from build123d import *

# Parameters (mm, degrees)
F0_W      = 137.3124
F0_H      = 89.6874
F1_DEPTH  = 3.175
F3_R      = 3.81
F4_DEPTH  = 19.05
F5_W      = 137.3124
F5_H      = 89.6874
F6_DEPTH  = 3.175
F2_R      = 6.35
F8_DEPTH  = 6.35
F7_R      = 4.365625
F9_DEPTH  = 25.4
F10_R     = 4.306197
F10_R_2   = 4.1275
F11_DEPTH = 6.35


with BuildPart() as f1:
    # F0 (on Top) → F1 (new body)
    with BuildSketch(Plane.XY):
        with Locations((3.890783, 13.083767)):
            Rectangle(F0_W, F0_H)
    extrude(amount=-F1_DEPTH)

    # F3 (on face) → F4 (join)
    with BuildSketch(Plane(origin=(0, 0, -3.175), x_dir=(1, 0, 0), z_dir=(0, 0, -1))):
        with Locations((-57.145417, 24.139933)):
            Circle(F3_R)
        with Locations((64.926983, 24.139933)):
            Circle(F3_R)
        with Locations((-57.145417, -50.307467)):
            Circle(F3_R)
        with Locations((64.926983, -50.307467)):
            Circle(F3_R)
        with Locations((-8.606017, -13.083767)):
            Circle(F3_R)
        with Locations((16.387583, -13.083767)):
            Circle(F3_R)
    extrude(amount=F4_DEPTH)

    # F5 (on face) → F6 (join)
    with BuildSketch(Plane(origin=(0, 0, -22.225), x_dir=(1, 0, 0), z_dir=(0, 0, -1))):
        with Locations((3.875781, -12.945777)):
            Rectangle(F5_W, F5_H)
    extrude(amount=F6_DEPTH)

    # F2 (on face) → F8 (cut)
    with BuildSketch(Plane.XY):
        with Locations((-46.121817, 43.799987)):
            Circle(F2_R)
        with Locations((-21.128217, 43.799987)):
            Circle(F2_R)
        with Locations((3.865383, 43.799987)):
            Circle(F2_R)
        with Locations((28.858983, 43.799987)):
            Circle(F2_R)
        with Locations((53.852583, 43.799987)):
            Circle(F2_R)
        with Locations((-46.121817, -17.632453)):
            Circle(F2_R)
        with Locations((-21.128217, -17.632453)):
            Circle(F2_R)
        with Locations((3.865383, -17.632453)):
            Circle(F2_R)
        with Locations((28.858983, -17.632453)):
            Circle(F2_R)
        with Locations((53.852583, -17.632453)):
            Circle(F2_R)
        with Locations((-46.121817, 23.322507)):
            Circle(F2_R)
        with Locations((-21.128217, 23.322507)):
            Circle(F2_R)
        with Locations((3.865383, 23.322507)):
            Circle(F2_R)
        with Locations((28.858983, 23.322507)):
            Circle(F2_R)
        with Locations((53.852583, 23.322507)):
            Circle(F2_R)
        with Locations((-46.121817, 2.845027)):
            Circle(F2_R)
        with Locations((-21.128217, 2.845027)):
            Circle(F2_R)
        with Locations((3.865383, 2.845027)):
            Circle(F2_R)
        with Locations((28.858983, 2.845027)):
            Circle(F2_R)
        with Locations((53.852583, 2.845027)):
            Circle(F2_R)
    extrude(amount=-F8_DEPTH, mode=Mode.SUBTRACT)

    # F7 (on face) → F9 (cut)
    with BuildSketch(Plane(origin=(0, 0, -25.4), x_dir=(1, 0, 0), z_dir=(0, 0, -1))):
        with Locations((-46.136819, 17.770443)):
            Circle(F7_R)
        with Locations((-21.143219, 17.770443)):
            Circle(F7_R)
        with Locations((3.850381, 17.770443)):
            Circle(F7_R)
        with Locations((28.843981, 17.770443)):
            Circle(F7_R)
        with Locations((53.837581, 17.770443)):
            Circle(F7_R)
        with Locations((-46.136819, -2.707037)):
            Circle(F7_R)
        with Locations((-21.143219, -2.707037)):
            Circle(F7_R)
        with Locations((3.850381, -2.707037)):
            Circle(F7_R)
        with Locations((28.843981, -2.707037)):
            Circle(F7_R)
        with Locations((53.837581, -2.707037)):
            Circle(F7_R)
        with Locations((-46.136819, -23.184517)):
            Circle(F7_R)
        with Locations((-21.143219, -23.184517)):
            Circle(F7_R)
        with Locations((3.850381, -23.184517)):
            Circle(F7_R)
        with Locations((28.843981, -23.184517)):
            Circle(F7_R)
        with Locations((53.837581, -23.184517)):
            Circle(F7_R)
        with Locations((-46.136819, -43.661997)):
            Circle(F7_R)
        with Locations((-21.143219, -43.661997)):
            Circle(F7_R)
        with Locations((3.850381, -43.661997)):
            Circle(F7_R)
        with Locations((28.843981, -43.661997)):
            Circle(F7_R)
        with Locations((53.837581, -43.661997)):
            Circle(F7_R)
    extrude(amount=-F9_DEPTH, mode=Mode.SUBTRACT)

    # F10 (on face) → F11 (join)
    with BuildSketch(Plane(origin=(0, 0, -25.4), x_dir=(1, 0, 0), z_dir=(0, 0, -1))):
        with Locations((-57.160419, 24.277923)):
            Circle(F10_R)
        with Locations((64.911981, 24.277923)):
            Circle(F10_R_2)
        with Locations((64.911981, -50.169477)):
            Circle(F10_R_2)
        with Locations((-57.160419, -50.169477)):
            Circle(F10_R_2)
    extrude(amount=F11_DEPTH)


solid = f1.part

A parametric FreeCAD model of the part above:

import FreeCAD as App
import Part
import Sketcher
Q = App.Units.Quantity


def add_polygon(sketch, points):
    """Adds a closed chain of lines whose ends are joined by coincident constraints."""
    first, n = sketch.GeometryCount, len(points)
    for a, b in zip(points, points[1:] + points[:1]):
        sketch.addGeometry(Part.LineSegment(App.Vector(*a, 0), App.Vector(*b, 0)), False)
    for i in range(n):
        sketch.addConstraint(Sketcher.Constraint("Coincident", first + i, 2, first + (i + 1) % n, 1))

doc = App.newDocument("Part")
body = doc.addObject("PartDesign::Body", "Body")

# Sketch on XY plane
sketch1 = body.newObject("Sketcher::SketchObject", "Sketch")
sketch1.AttachmentSupport = (doc.getObject("XY_Plane"), [""])
sketch1.MapMode = "FlatFace"
add_polygon(sketch1, [(-64.765417, 57.927467), (-64.765417, -31.759933), (72.546983, -31.759933), (72.546983, 57.927467)])  # lines 0-3
sketch1.addConstraint([
    Sketcher.Constraint("Vertical", 0),
    Sketcher.Constraint("Horizontal", 1),
    Sketcher.Constraint("Vertical", 2),
    Sketcher.Constraint("Horizontal", 3),
    Sketcher.Constraint("DistanceX", 1, 1, 1, 2, Q("5.406 in")),
    Sketcher.Constraint("DistanceY", 0, 2, 0, 1, Q("3.531 in")),
    Sketcher.Constraint("DistanceX", 0, 2, -1, 1, Q("64.765417 mm")),
    Sketcher.Constraint("DistanceY", 0, 2, -1, 1, Q("31.759933 mm")),
])
pad1 = body.newObject("PartDesign::Pad", "Pad")
pad1.Profile = sketch1
pad1.Length = Q("0.125 in")
pad1.Reversed = True

# Sketch on XY plane
sketch2 = body.newObject("Sketcher::SketchObject", "Sketch001")
sketch2.AttachmentSupport = (doc.getObject("XY_Plane"), [""])
sketch2.MapMode = "FlatFace"
sketch2.AttachmentOffset = App.Placement(App.Vector(0, 0, -0.125 * 25.4), App.Rotation())
sketch2.addGeometry([
    Part.Circle(App.Vector(-57.145417, -24.139933, 0), App.Vector(0, 0, 1), 3.81),  # 0
    Part.Circle(App.Vector(64.926983, -24.139933, 0), App.Vector(0, 0, 1), 3.81),  # 1
    Part.Circle(App.Vector(-57.145417, 50.307467, 0), App.Vector(0, 0, 1), 3.81),  # 2
    Part.Circle(App.Vector(64.926983, 50.307467, 0), App.Vector(0, 0, 1), 3.81),  # 3
    Part.Circle(App.Vector(-8.606017, 13.083767, 0), App.Vector(0, 0, 1), 3.81),  # 4
    Part.Circle(App.Vector(16.387583, 13.083767, 0), App.Vector(0, 0, 1), 3.81),  # 5
], False)
sketch2.addConstraint([
    Sketcher.Constraint("Equal", 0, 1),
    Sketcher.Constraint("Equal", 1, 2),
    Sketcher.Constraint("Equal", 2, 3),
    Sketcher.Constraint("Equal", 3, 4),
    Sketcher.Constraint("Equal", 4, 5),
    Sketcher.Constraint("Horizontal", 0, 3, 1, 3),
    Sketcher.Constraint("Horizontal", 2, 3, 3, 3),
    Sketcher.Constraint("Horizontal", 4, 3, 5, 3),
    Sketcher.Constraint("Vertical", 0, 3, 2, 3),
    Sketcher.Constraint("Vertical", 1, 3, 3, 3),
    Sketcher.Constraint("Diameter", 0, Q("0.3 in")),
    Sketcher.Constraint("DistanceX", 0, 3, 1, 3, Q("4.806 in")),
    Sketcher.Constraint("DistanceY", 0, 3, 2, 3, Q("2.931 in")),
    Sketcher.Constraint("DistanceX", 0, 3, 4, 3, Q("1.911 in")),
    Sketcher.Constraint("DistanceX", 4, 3, 5, 3, Q("0.984 in")),
    Sketcher.Constraint("DistanceY", 0, 3, 4, 3, Q("1.4655 in")),
    Sketcher.Constraint("DistanceX", 0, 3, -1, 1, Q("57.145417 mm")),
    Sketcher.Constraint("DistanceY", 0, 3, -1, 1, Q("24.139933 mm")),
])
pad2 = body.newObject("PartDesign::Pad", "Pad001")
pad2.Profile = sketch2
pad2.Length = Q("0.75 in")
pad2.Reversed = True

# Sketch on XY plane
sketch3 = body.newObject("Sketcher::SketchObject", "Sketch002")
sketch3.AttachmentSupport = (doc.getObject("XY_Plane"), [""])
sketch3.MapMode = "FlatFace"
sketch3.AttachmentOffset = App.Placement(App.Vector(0, 0, -0.875 * 25.4), App.Rotation())
add_polygon(sketch3, [(-64.780419, -31.897923), (-64.780419, 57.789477), (72.531981, 57.789477), (72.531981, -31.897923)])  # lines 0-3
sketch3.addConstraint([
    Sketcher.Constraint("Vertical", 0),
    Sketcher.Constraint("Horizontal", 1),
    Sketcher.Constraint("Vertical", 2),
    Sketcher.Constraint("Horizontal", 3),
    Sketcher.Constraint("DistanceX", 1, 1, 1, 2, Q("5.406 in")),
    Sketcher.Constraint("DistanceY", 0, 1, 0, 2, Q("3.531 in")),
    Sketcher.Constraint("DistanceX", 0, 2, -1, 1, Q("64.780419 mm")),
    Sketcher.Constraint("DistanceY", -1, 1, 0, 2, Q("57.789477 mm")),
])
pad3 = body.newObject("PartDesign::Pad", "Pad002")
pad3.Profile = sketch3
pad3.Length = Q("0.125 in")
pad3.Reversed = True

# Sketch on XY plane
sketch4 = body.newObject("Sketcher::SketchObject", "Sketch003")
sketch4.AttachmentSupport = (doc.getObject("XY_Plane"), [""])
sketch4.MapMode = "FlatFace"
sketch4.addGeometry([
    Part.Circle(App.Vector(-46.121817, 43.799987, 0), App.Vector(0, 0, 1), 6.35),  # 0
    Part.Circle(App.Vector(-21.128217, 43.799987, 0), App.Vector(0, 0, 1), 6.35),  # 1
    Part.Circle(App.Vector(3.865383, 43.799987, 0), App.Vector(0, 0, 1), 6.35),  # 2
    Part.Circle(App.Vector(28.858983, 43.799987, 0), App.Vector(0, 0, 1), 6.35),  # 3
    Part.Circle(App.Vector(53.852583, 43.799987, 0), App.Vector(0, 0, 1), 6.35),  # 4
    Part.Circle(App.Vector(-46.121817, -17.632453, 0), App.Vector(0, 0, 1), 6.35),  # 5
    Part.Circle(App.Vector(-21.128217, -17.632453, 0), App.Vector(0, 0, 1), 6.35),  # 6
    Part.Circle(App.Vector(3.865383, -17.632453, 0), App.Vector(0, 0, 1), 6.35),  # 7
    Part.Circle(App.Vector(28.858983, -17.632453, 0), App.Vector(0, 0, 1), 6.35),  # 8
    Part.Circle(App.Vector(53.852583, -17.632453, 0), App.Vector(0, 0, 1), 6.35),  # 9
    Part.Circle(App.Vector(-46.121817, 23.322507, 0), App.Vector(0, 0, 1), 6.35),  # 10
    Part.Circle(App.Vector(-21.128217, 23.322507, 0), App.Vector(0, 0, 1), 6.35),  # 11
    Part.Circle(App.Vector(3.865383, 23.322507, 0), App.Vector(0, 0, 1), 6.35),  # 12
    Part.Circle(App.Vector(28.858983, 23.322507, 0), App.Vector(0, 0, 1), 6.35),  # 13
    Part.Circle(App.Vector(53.852583, 23.322507, 0), App.Vector(0, 0, 1), 6.35),  # 14
    Part.Circle(App.Vector(-46.121817, 2.845027, 0), App.Vector(0, 0, 1), 6.35),  # 15
    Part.Circle(App.Vector(-21.128217, 2.845027, 0), App.Vector(0, 0, 1), 6.35),  # 16
    Part.Circle(App.Vector(3.865383, 2.845027, 0), App.Vector(0, 0, 1), 6.35),  # 17
    Part.Circle(App.Vector(28.858983, 2.845027, 0), App.Vector(0, 0, 1), 6.35),  # 18
    Part.Circle(App.Vector(53.852583, 2.845027, 0), App.Vector(0, 0, 1), 6.35),  # 19
], False)
sketch4.addConstraint([
    Sketcher.Constraint("Equal", 0, 1),
    Sketcher.Constraint("Equal", 1, 2),
    Sketcher.Constraint("Equal", 2, 3),
    Sketcher.Constraint("Equal", 3, 4),
    Sketcher.Constraint("Equal", 4, 5),
    Sketcher.Constraint("Equal", 5, 6),
    Sketcher.Constraint("Equal", 6, 7),
    Sketcher.Constraint("Equal", 7, 8),
    Sketcher.Constraint("Equal", 8, 9),
    Sketcher.Constraint("Equal", 9, 10),
    Sketcher.Constraint("Equal", 10, 11),
    Sketcher.Constraint("Equal", 11, 12),
    Sketcher.Constraint("Equal", 12, 13),
    Sketcher.Constraint("Equal", 13, 14),
    Sketcher.Constraint("Equal", 14, 15),
    Sketcher.Constraint("Equal", 15, 16),
    Sketcher.Constraint("Equal", 16, 17),
    Sketcher.Constraint("Equal", 17, 18),
    Sketcher.Constraint("Equal", 18, 19),
    Sketcher.Constraint("Horizontal", 0, 3, 1, 3),
    Sketcher.Constraint("Horizontal", 1, 3, 2, 3),
    Sketcher.Constraint("Horizontal", 2, 3, 3, 3),
    Sketcher.Constraint("Horizontal", 3, 3, 4, 3),
    Sketcher.Constraint("Horizontal", 5, 3, 6, 3),
    Sketcher.Constraint("Horizontal", 6, 3, 7, 3),
    Sketcher.Constraint("Horizontal", 7, 3, 8, 3),
    Sketcher.Constraint("Horizontal", 8, 3, 9, 3),
    Sketcher.Constraint("Horizontal", 10, 3, 11, 3),
    Sketcher.Constraint("Horizontal", 11, 3, 12, 3),
    Sketcher.Constraint("Horizontal", 12, 3, 13, 3),
    Sketcher.Constraint("Horizontal", 13, 3, 14, 3),
    Sketcher.Constraint("Horizontal", 15, 3, 16, 3),
    Sketcher.Constraint("Horizontal", 16, 3, 17, 3),
    Sketcher.Constraint("Horizontal", 17, 3, 18, 3),
    Sketcher.Constraint("Horizontal", 18, 3, 19, 3),
    Sketcher.Constraint("Vertical", 0, 3, 5, 3),
    Sketcher.Constraint("Vertical", 1, 3, 6, 3),
    Sketcher.Constraint("Vertical", 2, 3, 7, 3),
    Sketcher.Constraint("Vertical", 3, 3, 8, 3),
    Sketcher.Constraint("Vertical", 4, 3, 9, 3),
    Sketcher.Constraint("Vertical", 5, 3, 10, 3),
    Sketcher.Constraint("Vertical", 6, 3, 11, 3),
    Sketcher.Constraint("Vertical", 7, 3, 12, 3),
    Sketcher.Constraint("Vertical", 8, 3, 13, 3),
    Sketcher.Constraint("Vertical", 9, 3, 14, 3),
    Sketcher.Constraint("Vertical", 10, 3, 15, 3),
    Sketcher.Constraint("Vertical", 11, 3, 16, 3),
    Sketcher.Constraint("Vertical", 12, 3, 17, 3),
    Sketcher.Constraint("Vertical", 13, 3, 18, 3),
    Sketcher.Constraint("Vertical", 14, 3, 19, 3),
    Sketcher.Constraint("Diameter", 0, Q("0.5 in")),
    Sketcher.Constraint("DistanceX", 0, 3, 1, 3, Q("0.984 in")),
    Sketcher.Constraint("DistanceX", 1, 3, 2, 3, Q("0.984 in")),
    Sketcher.Constraint("DistanceX", 2, 3, 3, 3, Q("0.984 in")),
    Sketcher.Constraint("DistanceX", 3, 3, 4, 3, Q("0.984 in")),
    Sketcher.Constraint("DistanceY", 5, 3, 0, 3, Q("2.4186 in")),
    Sketcher.Constraint("DistanceY", 10, 3, 0, 3, Q("0.8062 in")),
    Sketcher.Constraint("DistanceY", 5, 3, 15, 3, Q("0.8062 in")),
    Sketcher.Constraint("DistanceX", 0, 3, -1, 1, Q("46.121817 mm")),
    Sketcher.Constraint("DistanceY", -1, 1, 0, 3, Q("43.799987 mm")),
])
pocket1 = body.newObject("PartDesign::Pocket", "Pocket")
pocket1.Profile = sketch4
pocket1.Length = Q("0.25 in")

# Sketch on XY plane
sketch5 = body.newObject("Sketcher::SketchObject", "Sketch004")
sketch5.AttachmentSupport = (doc.getObject("XY_Plane"), [""])
sketch5.MapMode = "FlatFace"
sketch5.AttachmentOffset = App.Placement(App.Vector(0, 0, -1 * 25.4), App.Rotation())
sketch5.addGeometry([
    Part.Circle(App.Vector(-46.136819, -17.770443, 0), App.Vector(0, 0, 1), 4.365625),  # 0
    Part.Circle(App.Vector(-21.143219, -17.770443, 0), App.Vector(0, 0, 1), 4.365625),  # 1
    Part.Circle(App.Vector(3.850381, -17.770443, 0), App.Vector(0, 0, 1), 4.365625),  # 2
    Part.Circle(App.Vector(28.843981, -17.770443, 0), App.Vector(0, 0, 1), 4.365625),  # 3
    Part.Circle(App.Vector(53.837581, -17.770443, 0), App.Vector(0, 0, 1), 4.365625),  # 4
    Part.Circle(App.Vector(-46.136819, 2.707037, 0), App.Vector(0, 0, 1), 4.365625),  # 5
    Part.Circle(App.Vector(-21.143219, 2.707037, 0), App.Vector(0, 0, 1), 4.365625),  # 6
    Part.Circle(App.Vector(3.850381, 2.707037, 0), App.Vector(0, 0, 1), 4.365625),  # 7
    Part.Circle(App.Vector(28.843981, 2.707037, 0), App.Vector(0, 0, 1), 4.365625),  # 8
    Part.Circle(App.Vector(53.837581, 2.707037, 0), App.Vector(0, 0, 1), 4.365625),  # 9
    Part.Circle(App.Vector(-46.136819, 23.184517, 0), App.Vector(0, 0, 1), 4.365625),  # 10
    Part.Circle(App.Vector(-21.143219, 23.184517, 0), App.Vector(0, 0, 1), 4.365625),  # 11
    Part.Circle(App.Vector(3.850381, 23.184517, 0), App.Vector(0, 0, 1), 4.365625),  # 12
    Part.Circle(App.Vector(28.843981, 23.184517, 0), App.Vector(0, 0, 1), 4.365625),  # 13
    Part.Circle(App.Vector(53.837581, 23.184517, 0), App.Vector(0, 0, 1), 4.365625),  # 14
    Part.Circle(App.Vector(-46.136819, 43.661997, 0), App.Vector(0, 0, 1), 4.365625),  # 15
    Part.Circle(App.Vector(-21.143219, 43.661997, 0), App.Vector(0, 0, 1), 4.365625),  # 16
    Part.Circle(App.Vector(3.850381, 43.661997, 0), App.Vector(0, 0, 1), 4.365625),  # 17
    Part.Circle(App.Vector(28.843981, 43.661997, 0), App.Vector(0, 0, 1), 4.365625),  # 18
    Part.Circle(App.Vector(53.837581, 43.661997, 0), App.Vector(0, 0, 1), 4.365625),  # 19
], False)
sketch5.addConstraint([
    Sketcher.Constraint("Equal", 0, 1),
    Sketcher.Constraint("Equal", 1, 2),
    Sketcher.Constraint("Equal", 2, 3),
    Sketcher.Constraint("Equal", 3, 4),
    Sketcher.Constraint("Equal", 4, 5),
    Sketcher.Constraint("Equal", 5, 6),
    Sketcher.Constraint("Equal", 6, 7),
    Sketcher.Constraint("Equal", 7, 8),
    Sketcher.Constraint("Equal", 8, 9),
    Sketcher.Constraint("Equal", 9, 10),
    Sketcher.Constraint("Equal", 10, 11),
    Sketcher.Constraint("Equal", 11, 12),
    Sketcher.Constraint("Equal", 12, 13),
    Sketcher.Constraint("Equal", 13, 14),
    Sketcher.Constraint("Equal", 14, 15),
    Sketcher.Constraint("Equal", 15, 16),
    Sketcher.Constraint("Equal", 16, 17),
    Sketcher.Constraint("Equal", 17, 18),
    Sketcher.Constraint("Equal", 18, 19),
    Sketcher.Constraint("Horizontal", 0, 3, 1, 3),
    Sketcher.Constraint("Horizontal", 1, 3, 2, 3),
    Sketcher.Constraint("Horizontal", 2, 3, 3, 3),
    Sketcher.Constraint("Horizontal", 3, 3, 4, 3),
    Sketcher.Constraint("Horizontal", 5, 3, 6, 3),
    Sketcher.Constraint("Horizontal", 6, 3, 7, 3),
    Sketcher.Constraint("Horizontal", 7, 3, 8, 3),
    Sketcher.Constraint("Horizontal", 8, 3, 9, 3),
    Sketcher.Constraint("Horizontal", 10, 3, 11, 3),
    Sketcher.Constraint("Horizontal", 11, 3, 12, 3),
    Sketcher.Constraint("Horizontal", 12, 3, 13, 3),
    Sketcher.Constraint("Horizontal", 13, 3, 14, 3),
    Sketcher.Constraint("Horizontal", 15, 3, 16, 3),
    Sketcher.Constraint("Horizontal", 16, 3, 17, 3),
    Sketcher.Constraint("Horizontal", 17, 3, 18, 3),
    Sketcher.Constraint("Horizontal", 18, 3, 19, 3),
    Sketcher.Constraint("Vertical", 0, 3, 5, 3),
    Sketcher.Constraint("Vertical", 1, 3, 6, 3),
    Sketcher.Constraint("Vertical", 2, 3, 7, 3),
    Sketcher.Constraint("Vertical", 3, 3, 8, 3),
    Sketcher.Constraint("Vertical", 4, 3, 9, 3),
    Sketcher.Constraint("Vertical", 5, 3, 10, 3),
    Sketcher.Constraint("Vertical", 6, 3, 11, 3),
    Sketcher.Constraint("Vertical", 7, 3, 12, 3),
    Sketcher.Constraint("Vertical", 8, 3, 13, 3),
    Sketcher.Constraint("Vertical", 9, 3, 14, 3),
    Sketcher.Constraint("Vertical", 10, 3, 15, 3),
    Sketcher.Constraint("Vertical", 11, 3, 16, 3),
    Sketcher.Constraint("Vertical", 12, 3, 17, 3),
    Sketcher.Constraint("Vertical", 13, 3, 18, 3),
    Sketcher.Constraint("Vertical", 14, 3, 19, 3),
    Sketcher.Constraint("Diameter", 0, Q("0.34375 in")),
    Sketcher.Constraint("DistanceX", 0, 3, 1, 3, Q("0.984 in")),
    Sketcher.Constraint("DistanceX", 1, 3, 2, 3, Q("0.984 in")),
    Sketcher.Constraint("DistanceX", 2, 3, 3, 3, Q("0.984 in")),
    Sketcher.Constraint("DistanceX", 3, 3, 4, 3, Q("0.984 in")),
    Sketcher.Constraint("DistanceY", 0, 3, 5, 3, Q("0.8062 in")),
    Sketcher.Constraint("DistanceY", 5, 3, 10, 3, Q("0.8062 in")),
    Sketcher.Constraint("DistanceY", 10, 3, 15, 3, Q("0.8062 in")),
    Sketcher.Constraint("DistanceX", 0, 3, -1, 1, Q("46.136819 mm")),
    Sketcher.Constraint("DistanceY", 0, 3, -1, 1, Q("17.770443 mm")),
])
pocket2 = body.newObject("PartDesign::Pocket", "Pocket001")
pocket2.Profile = sketch5
pocket2.Length = Q("1 in")
pocket2.Reversed = True

# Sketch on XY plane
sketch6 = body.newObject("Sketcher::SketchObject", "Sketch005")
sketch6.AttachmentSupport = (doc.getObject("XY_Plane"), [""])
sketch6.MapMode = "FlatFace"
sketch6.AttachmentOffset = App.Placement(App.Vector(0, 0, -1 * 25.4), App.Rotation())
sketch6.addGeometry([
    Part.Circle(App.Vector(-57.160419, -24.277923, 0), App.Vector(0, 0, 1), 4.306197),
    Part.Circle(App.Vector(64.911981, -24.277923, 0), App.Vector(0, 0, 1), 4.1275),
    Part.Circle(App.Vector(64.911981, 50.169477, 0), App.Vector(0, 0, 1), 4.1275),
    Part.Circle(App.Vector(-57.160419, 50.169477, 0), App.Vector(0, 0, 1), 4.1275),
], False)
sketch6.addConstraint([
    Sketcher.Constraint("Equal", 1, 2),
    Sketcher.Constraint("Equal", 2, 3),
    Sketcher.Constraint("Horizontal", 0, 3, 1, 3),
    Sketcher.Constraint("Horizontal", 2, 3, 3, 3),
    Sketcher.Constraint("Vertical", 1, 3, 2, 3),
    Sketcher.Constraint("Vertical", 0, 3, 3, 3),
    Sketcher.Constraint("Diameter", 1, Q("0.325 in")),
    Sketcher.Constraint("DistanceX", 0, 3, 1, 3, Q("4.806 in")),
    Sketcher.Constraint("DistanceY", 1, 3, 2, 3, Q("2.931 in")),
    Sketcher.Constraint("Diameter", 0, Q("8.612394 mm")),
    Sketcher.Constraint("DistanceX", 0, 3, -1, 1, Q("57.160419 mm")),
    Sketcher.Constraint("DistanceY", 0, 3, -1, 1, Q("24.277923 mm")),
])
pad4 = body.newObject("PartDesign::Pad", "Pad003")
pad4.Profile = sketch6
pad4.Length = Q("0.25 in")
pad4.Reversed = True

doc.recompute()
